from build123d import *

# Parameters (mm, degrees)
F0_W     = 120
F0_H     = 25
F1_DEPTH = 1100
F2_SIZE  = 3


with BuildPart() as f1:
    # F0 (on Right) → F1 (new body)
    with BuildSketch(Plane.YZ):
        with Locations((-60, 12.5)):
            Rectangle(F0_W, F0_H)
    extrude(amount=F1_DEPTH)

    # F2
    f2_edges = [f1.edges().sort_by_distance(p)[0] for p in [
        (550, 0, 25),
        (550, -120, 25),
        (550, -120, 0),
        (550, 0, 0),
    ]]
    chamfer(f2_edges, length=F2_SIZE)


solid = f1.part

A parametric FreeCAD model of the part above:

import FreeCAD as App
import Part
import Sketcher
Q = App.Units.Quantity


def edges_at(feature, points):
    """Names of the edges that pass closest to the given points."""
    edges = feature.Shape.Edges
    near = lambda p: min(range(len(edges)), key=lambda i: edges[i].distToShape(Part.Vertex(*p))[0])
    return sorted({f"Edge{near(p) + 1}" for p in points})


def add_polygon(sketch, points):
    """Adds a closed chain of lines whose ends are joined by coincident constraints."""
    first, n = sketch.GeometryCount, len(points)
    for a, b in zip(points, points[1:] + points[:1]):
        sketch.addGeometry(Part.LineSegment(App.Vector(*a, 0), App.Vector(*b, 0)), False)
    for i in range(n):
        sketch.addConstraint(Sketcher.Constraint("Coincident", first + i, 2, first + (i + 1) % n, 1))

doc = App.newDocument("Part")
body = doc.addObject("PartDesign::Body", "Body")

# Sketch on YZ plane
sketch1 = doc.addObject("Sketcher::SketchObject", "Sketch")
body.addObject(sketch1)
sketch1.AttachmentSupport = (doc.YZ_Plane, [""])
sketch1.MapMode = "FlatFace"
add_polygon(sketch1, [(-120, 25), (-120, 0), (0, 0), (0, 25)])  # lines 0-3
sketch1.addConstraint(Sketcher.Constraint("Vertical", 0))
sketch1.addConstraint(Sketcher.Constraint("Horizontal", 1))
sketch1.addConstraint(Sketcher.Constraint("Vertical", 2))
sketch1.addConstraint(Sketcher.Constraint("Horizontal", 3))
sketch1.addConstraint(Sketcher.Constraint("Coincident", 1, 2, -1, 1))
sketch1.addConstraint(Sketcher.Constraint("DistanceX", 1, 1, 1, 2, Q("120 mm")))
sketch1.addConstraint(Sketcher.Constraint("DistanceY", 0, 2, 0, 1, Q("25 mm")))
pad1 = doc.addObject("PartDesign::Pad", "Pad")
body.addObject(pad1)
pad1.Profile = sketch1
pad1.Length = 1100
doc.recompute()

chamfer = doc.addObject("PartDesign::Chamfer", "Chamfer")
body.addObject(chamfer)
chamfer.Base = (pad1, edges_at(pad1, [
    (550, 0, 25),
    (550, -120, 25),
    (550, -120, 0),
    (550, 0, 0),
]))
chamfer.Size = 3

doc.recompute()
